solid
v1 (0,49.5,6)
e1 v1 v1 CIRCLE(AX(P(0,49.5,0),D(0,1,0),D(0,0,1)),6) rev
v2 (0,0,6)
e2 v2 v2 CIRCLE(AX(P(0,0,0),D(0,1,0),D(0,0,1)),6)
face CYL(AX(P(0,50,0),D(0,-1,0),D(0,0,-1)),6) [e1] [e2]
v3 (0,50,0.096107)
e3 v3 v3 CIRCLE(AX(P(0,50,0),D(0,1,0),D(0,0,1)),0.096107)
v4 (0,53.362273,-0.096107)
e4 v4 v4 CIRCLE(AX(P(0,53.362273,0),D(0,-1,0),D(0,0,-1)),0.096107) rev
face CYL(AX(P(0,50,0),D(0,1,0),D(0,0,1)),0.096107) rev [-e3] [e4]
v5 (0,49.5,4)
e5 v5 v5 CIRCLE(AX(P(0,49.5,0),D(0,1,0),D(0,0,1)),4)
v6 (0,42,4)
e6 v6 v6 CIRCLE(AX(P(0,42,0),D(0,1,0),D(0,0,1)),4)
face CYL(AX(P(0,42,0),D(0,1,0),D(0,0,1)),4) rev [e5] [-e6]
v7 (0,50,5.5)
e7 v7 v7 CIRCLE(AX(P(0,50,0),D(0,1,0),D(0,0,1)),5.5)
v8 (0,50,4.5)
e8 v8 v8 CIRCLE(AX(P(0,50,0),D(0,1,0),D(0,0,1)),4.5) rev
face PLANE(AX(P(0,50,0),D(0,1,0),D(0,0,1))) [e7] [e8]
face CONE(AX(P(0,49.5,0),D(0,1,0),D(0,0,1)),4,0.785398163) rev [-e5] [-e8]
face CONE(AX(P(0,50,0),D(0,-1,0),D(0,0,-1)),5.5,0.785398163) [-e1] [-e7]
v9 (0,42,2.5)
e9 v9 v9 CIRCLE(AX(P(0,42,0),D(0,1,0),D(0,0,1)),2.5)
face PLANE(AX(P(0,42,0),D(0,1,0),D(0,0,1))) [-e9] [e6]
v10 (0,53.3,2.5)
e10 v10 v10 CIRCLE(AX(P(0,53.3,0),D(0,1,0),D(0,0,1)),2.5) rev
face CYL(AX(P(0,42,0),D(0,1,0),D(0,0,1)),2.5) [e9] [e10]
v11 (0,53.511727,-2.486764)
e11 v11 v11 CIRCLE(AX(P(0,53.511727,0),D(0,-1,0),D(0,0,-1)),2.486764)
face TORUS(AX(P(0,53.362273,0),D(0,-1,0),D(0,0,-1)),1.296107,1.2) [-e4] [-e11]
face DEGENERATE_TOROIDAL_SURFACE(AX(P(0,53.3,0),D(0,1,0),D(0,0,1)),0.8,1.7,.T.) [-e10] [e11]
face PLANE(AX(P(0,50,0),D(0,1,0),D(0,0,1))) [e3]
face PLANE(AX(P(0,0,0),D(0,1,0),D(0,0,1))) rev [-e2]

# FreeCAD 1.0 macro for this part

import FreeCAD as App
import Part
import Sketcher
from FreeCAD import Vector


def edges_at(feature, points):
    """Names of the edges that pass closest to the given points."""
    edges = feature.Shape.Edges
    near = lambda p: min(range(len(edges)), key=lambda i: edges[i].distToShape(Part.Vertex(*p))[0])
    return sorted({f"Edge{near(p) + 1}" for p in points})

doc = App.newDocument("Part")
body = doc.addObject("PartDesign::Body", "Body")

sketch1 = body.newObject("Sketcher::SketchObject", "Sketch")
sketch1.AttachmentSupport = (doc.getObject("XZ_Plane"), [""])
sketch1.MapMode = "FlatFace"
sketch1.addGeometry(Part.Circle(Vector(0, 0, 0), Vector(0, 0, 1), 6), False)
sketch1.addConstraint([
    Sketcher.Constraint("Coincident", 0, 3, -1, 1),
    Sketcher.Constraint("Diameter", 0, 12.0),
])
pad1 = body.newObject("PartDesign::Pad", "Pad")
pad1.Profile = sketch1
pad1.Length = 50
pad1.Reversed = True

sketch2 = body.newObject("Sketcher::SketchObject", "Sketch001")
sketch2.AttachmentSupport = (doc.getObject("XZ_Plane"), [""])
sketch2.MapMode = "FlatFace"
sketch2.AttachmentOffset = App.Placement(Vector(0, 0, -50), App.Rotation())
sketch2.addGeometry([
    Part.Circle(Vector(0, 0, 0), Vector(0, 0, 1), 4),
    Part.Circle(Vector(0, 0, 0), Vector(0, 0, 1), 2.5),
], False)
sketch2.addConstraint([
    Sketcher.Constraint("Coincident", 0, 3, -1, 1),
    Sketcher.Constraint("Coincident", 1, 3, -1, 1),
    Sketcher.Constraint("Diameter", 0, 8.0),
    Sketcher.Constraint("Diameter", 1, 5.0),
])
pocket1 = body.newObject("PartDesign::Pocket", "Pocket")
pocket1.Profile = sketch2
pocket1.Length = 8
pocket1.Reversed = True

sketch3 = body.newObject("Sketcher::SketchObject", "Sketch002")
sketch3.AttachmentSupport = (doc.getObject("XZ_Plane"), [""])
sketch3.MapMode = "FlatFace"
sketch3.AttachmentOffset = App.Placement(Vector(0, 0, -55), App.Rotation())
sketch3.addGeometry(Part.Circle(Vector(0, 0, 0), Vector(0, 0, 1), 2.5), False)
sketch3.addConstraint([
    Sketcher.Constraint("Coincident", 0, 3, -1, 1),
    Sketcher.Constraint("Diameter", 0, 5.0),
])
pad2 = body.newObject("PartDesign::Pad", "Pad001")
pad2.Profile = sketch3
pad2.Length = 5
doc.recompute()

fillet = body.newObject("PartDesign::Fillet", "Fillet")
fillet.Base = (pad2, edges_at(pad2, [(0, 55, -2.5)]))
fillet.Radius = 1.7

sketch4 = body.newObject("Sketcher::SketchObject", "Sketch003")
sketch4.AttachmentSupport = (doc.getObject("XZ_Plane"), [""])
sketch4.MapMode = "FlatFace"
sketch4.AttachmentOffset = App.Placement(Vector(0, 0, -55), App.Rotation())
sketch4.addGeometry(Part.Circle(Vector(0, 0, 0), Vector(0, 0, 1), 0.096107), False)
sketch4.addConstraint([
    Sketcher.Constraint("Coincident", 0, 3, -1, 1),
    Sketcher.Constraint("Diameter", 0, 0.192214),
])
pocket2 = body.newObject("PartDesign::Pocket", "Pocket001")
pocket2.Profile = sketch4
pocket2.Length = 5
pocket2.Reversed = True
doc.recompute()

fillet2 = body.newObject("PartDesign::Fillet", "Fillet001")
fillet2.Base = (pocket2, edges_at(pocket2, [(0, 55, -0.096)]))
fillet2.Radius = 1.2
doc.recompute()

chamfer = body.newObject("PartDesign::Chamfer", "Chamfer")
chamfer.Base = (fillet2, edges_at(fillet2, [(0, 50, -6), (0, 50, -4)]))
chamfer.Size = 0.5

doc.recompute()
